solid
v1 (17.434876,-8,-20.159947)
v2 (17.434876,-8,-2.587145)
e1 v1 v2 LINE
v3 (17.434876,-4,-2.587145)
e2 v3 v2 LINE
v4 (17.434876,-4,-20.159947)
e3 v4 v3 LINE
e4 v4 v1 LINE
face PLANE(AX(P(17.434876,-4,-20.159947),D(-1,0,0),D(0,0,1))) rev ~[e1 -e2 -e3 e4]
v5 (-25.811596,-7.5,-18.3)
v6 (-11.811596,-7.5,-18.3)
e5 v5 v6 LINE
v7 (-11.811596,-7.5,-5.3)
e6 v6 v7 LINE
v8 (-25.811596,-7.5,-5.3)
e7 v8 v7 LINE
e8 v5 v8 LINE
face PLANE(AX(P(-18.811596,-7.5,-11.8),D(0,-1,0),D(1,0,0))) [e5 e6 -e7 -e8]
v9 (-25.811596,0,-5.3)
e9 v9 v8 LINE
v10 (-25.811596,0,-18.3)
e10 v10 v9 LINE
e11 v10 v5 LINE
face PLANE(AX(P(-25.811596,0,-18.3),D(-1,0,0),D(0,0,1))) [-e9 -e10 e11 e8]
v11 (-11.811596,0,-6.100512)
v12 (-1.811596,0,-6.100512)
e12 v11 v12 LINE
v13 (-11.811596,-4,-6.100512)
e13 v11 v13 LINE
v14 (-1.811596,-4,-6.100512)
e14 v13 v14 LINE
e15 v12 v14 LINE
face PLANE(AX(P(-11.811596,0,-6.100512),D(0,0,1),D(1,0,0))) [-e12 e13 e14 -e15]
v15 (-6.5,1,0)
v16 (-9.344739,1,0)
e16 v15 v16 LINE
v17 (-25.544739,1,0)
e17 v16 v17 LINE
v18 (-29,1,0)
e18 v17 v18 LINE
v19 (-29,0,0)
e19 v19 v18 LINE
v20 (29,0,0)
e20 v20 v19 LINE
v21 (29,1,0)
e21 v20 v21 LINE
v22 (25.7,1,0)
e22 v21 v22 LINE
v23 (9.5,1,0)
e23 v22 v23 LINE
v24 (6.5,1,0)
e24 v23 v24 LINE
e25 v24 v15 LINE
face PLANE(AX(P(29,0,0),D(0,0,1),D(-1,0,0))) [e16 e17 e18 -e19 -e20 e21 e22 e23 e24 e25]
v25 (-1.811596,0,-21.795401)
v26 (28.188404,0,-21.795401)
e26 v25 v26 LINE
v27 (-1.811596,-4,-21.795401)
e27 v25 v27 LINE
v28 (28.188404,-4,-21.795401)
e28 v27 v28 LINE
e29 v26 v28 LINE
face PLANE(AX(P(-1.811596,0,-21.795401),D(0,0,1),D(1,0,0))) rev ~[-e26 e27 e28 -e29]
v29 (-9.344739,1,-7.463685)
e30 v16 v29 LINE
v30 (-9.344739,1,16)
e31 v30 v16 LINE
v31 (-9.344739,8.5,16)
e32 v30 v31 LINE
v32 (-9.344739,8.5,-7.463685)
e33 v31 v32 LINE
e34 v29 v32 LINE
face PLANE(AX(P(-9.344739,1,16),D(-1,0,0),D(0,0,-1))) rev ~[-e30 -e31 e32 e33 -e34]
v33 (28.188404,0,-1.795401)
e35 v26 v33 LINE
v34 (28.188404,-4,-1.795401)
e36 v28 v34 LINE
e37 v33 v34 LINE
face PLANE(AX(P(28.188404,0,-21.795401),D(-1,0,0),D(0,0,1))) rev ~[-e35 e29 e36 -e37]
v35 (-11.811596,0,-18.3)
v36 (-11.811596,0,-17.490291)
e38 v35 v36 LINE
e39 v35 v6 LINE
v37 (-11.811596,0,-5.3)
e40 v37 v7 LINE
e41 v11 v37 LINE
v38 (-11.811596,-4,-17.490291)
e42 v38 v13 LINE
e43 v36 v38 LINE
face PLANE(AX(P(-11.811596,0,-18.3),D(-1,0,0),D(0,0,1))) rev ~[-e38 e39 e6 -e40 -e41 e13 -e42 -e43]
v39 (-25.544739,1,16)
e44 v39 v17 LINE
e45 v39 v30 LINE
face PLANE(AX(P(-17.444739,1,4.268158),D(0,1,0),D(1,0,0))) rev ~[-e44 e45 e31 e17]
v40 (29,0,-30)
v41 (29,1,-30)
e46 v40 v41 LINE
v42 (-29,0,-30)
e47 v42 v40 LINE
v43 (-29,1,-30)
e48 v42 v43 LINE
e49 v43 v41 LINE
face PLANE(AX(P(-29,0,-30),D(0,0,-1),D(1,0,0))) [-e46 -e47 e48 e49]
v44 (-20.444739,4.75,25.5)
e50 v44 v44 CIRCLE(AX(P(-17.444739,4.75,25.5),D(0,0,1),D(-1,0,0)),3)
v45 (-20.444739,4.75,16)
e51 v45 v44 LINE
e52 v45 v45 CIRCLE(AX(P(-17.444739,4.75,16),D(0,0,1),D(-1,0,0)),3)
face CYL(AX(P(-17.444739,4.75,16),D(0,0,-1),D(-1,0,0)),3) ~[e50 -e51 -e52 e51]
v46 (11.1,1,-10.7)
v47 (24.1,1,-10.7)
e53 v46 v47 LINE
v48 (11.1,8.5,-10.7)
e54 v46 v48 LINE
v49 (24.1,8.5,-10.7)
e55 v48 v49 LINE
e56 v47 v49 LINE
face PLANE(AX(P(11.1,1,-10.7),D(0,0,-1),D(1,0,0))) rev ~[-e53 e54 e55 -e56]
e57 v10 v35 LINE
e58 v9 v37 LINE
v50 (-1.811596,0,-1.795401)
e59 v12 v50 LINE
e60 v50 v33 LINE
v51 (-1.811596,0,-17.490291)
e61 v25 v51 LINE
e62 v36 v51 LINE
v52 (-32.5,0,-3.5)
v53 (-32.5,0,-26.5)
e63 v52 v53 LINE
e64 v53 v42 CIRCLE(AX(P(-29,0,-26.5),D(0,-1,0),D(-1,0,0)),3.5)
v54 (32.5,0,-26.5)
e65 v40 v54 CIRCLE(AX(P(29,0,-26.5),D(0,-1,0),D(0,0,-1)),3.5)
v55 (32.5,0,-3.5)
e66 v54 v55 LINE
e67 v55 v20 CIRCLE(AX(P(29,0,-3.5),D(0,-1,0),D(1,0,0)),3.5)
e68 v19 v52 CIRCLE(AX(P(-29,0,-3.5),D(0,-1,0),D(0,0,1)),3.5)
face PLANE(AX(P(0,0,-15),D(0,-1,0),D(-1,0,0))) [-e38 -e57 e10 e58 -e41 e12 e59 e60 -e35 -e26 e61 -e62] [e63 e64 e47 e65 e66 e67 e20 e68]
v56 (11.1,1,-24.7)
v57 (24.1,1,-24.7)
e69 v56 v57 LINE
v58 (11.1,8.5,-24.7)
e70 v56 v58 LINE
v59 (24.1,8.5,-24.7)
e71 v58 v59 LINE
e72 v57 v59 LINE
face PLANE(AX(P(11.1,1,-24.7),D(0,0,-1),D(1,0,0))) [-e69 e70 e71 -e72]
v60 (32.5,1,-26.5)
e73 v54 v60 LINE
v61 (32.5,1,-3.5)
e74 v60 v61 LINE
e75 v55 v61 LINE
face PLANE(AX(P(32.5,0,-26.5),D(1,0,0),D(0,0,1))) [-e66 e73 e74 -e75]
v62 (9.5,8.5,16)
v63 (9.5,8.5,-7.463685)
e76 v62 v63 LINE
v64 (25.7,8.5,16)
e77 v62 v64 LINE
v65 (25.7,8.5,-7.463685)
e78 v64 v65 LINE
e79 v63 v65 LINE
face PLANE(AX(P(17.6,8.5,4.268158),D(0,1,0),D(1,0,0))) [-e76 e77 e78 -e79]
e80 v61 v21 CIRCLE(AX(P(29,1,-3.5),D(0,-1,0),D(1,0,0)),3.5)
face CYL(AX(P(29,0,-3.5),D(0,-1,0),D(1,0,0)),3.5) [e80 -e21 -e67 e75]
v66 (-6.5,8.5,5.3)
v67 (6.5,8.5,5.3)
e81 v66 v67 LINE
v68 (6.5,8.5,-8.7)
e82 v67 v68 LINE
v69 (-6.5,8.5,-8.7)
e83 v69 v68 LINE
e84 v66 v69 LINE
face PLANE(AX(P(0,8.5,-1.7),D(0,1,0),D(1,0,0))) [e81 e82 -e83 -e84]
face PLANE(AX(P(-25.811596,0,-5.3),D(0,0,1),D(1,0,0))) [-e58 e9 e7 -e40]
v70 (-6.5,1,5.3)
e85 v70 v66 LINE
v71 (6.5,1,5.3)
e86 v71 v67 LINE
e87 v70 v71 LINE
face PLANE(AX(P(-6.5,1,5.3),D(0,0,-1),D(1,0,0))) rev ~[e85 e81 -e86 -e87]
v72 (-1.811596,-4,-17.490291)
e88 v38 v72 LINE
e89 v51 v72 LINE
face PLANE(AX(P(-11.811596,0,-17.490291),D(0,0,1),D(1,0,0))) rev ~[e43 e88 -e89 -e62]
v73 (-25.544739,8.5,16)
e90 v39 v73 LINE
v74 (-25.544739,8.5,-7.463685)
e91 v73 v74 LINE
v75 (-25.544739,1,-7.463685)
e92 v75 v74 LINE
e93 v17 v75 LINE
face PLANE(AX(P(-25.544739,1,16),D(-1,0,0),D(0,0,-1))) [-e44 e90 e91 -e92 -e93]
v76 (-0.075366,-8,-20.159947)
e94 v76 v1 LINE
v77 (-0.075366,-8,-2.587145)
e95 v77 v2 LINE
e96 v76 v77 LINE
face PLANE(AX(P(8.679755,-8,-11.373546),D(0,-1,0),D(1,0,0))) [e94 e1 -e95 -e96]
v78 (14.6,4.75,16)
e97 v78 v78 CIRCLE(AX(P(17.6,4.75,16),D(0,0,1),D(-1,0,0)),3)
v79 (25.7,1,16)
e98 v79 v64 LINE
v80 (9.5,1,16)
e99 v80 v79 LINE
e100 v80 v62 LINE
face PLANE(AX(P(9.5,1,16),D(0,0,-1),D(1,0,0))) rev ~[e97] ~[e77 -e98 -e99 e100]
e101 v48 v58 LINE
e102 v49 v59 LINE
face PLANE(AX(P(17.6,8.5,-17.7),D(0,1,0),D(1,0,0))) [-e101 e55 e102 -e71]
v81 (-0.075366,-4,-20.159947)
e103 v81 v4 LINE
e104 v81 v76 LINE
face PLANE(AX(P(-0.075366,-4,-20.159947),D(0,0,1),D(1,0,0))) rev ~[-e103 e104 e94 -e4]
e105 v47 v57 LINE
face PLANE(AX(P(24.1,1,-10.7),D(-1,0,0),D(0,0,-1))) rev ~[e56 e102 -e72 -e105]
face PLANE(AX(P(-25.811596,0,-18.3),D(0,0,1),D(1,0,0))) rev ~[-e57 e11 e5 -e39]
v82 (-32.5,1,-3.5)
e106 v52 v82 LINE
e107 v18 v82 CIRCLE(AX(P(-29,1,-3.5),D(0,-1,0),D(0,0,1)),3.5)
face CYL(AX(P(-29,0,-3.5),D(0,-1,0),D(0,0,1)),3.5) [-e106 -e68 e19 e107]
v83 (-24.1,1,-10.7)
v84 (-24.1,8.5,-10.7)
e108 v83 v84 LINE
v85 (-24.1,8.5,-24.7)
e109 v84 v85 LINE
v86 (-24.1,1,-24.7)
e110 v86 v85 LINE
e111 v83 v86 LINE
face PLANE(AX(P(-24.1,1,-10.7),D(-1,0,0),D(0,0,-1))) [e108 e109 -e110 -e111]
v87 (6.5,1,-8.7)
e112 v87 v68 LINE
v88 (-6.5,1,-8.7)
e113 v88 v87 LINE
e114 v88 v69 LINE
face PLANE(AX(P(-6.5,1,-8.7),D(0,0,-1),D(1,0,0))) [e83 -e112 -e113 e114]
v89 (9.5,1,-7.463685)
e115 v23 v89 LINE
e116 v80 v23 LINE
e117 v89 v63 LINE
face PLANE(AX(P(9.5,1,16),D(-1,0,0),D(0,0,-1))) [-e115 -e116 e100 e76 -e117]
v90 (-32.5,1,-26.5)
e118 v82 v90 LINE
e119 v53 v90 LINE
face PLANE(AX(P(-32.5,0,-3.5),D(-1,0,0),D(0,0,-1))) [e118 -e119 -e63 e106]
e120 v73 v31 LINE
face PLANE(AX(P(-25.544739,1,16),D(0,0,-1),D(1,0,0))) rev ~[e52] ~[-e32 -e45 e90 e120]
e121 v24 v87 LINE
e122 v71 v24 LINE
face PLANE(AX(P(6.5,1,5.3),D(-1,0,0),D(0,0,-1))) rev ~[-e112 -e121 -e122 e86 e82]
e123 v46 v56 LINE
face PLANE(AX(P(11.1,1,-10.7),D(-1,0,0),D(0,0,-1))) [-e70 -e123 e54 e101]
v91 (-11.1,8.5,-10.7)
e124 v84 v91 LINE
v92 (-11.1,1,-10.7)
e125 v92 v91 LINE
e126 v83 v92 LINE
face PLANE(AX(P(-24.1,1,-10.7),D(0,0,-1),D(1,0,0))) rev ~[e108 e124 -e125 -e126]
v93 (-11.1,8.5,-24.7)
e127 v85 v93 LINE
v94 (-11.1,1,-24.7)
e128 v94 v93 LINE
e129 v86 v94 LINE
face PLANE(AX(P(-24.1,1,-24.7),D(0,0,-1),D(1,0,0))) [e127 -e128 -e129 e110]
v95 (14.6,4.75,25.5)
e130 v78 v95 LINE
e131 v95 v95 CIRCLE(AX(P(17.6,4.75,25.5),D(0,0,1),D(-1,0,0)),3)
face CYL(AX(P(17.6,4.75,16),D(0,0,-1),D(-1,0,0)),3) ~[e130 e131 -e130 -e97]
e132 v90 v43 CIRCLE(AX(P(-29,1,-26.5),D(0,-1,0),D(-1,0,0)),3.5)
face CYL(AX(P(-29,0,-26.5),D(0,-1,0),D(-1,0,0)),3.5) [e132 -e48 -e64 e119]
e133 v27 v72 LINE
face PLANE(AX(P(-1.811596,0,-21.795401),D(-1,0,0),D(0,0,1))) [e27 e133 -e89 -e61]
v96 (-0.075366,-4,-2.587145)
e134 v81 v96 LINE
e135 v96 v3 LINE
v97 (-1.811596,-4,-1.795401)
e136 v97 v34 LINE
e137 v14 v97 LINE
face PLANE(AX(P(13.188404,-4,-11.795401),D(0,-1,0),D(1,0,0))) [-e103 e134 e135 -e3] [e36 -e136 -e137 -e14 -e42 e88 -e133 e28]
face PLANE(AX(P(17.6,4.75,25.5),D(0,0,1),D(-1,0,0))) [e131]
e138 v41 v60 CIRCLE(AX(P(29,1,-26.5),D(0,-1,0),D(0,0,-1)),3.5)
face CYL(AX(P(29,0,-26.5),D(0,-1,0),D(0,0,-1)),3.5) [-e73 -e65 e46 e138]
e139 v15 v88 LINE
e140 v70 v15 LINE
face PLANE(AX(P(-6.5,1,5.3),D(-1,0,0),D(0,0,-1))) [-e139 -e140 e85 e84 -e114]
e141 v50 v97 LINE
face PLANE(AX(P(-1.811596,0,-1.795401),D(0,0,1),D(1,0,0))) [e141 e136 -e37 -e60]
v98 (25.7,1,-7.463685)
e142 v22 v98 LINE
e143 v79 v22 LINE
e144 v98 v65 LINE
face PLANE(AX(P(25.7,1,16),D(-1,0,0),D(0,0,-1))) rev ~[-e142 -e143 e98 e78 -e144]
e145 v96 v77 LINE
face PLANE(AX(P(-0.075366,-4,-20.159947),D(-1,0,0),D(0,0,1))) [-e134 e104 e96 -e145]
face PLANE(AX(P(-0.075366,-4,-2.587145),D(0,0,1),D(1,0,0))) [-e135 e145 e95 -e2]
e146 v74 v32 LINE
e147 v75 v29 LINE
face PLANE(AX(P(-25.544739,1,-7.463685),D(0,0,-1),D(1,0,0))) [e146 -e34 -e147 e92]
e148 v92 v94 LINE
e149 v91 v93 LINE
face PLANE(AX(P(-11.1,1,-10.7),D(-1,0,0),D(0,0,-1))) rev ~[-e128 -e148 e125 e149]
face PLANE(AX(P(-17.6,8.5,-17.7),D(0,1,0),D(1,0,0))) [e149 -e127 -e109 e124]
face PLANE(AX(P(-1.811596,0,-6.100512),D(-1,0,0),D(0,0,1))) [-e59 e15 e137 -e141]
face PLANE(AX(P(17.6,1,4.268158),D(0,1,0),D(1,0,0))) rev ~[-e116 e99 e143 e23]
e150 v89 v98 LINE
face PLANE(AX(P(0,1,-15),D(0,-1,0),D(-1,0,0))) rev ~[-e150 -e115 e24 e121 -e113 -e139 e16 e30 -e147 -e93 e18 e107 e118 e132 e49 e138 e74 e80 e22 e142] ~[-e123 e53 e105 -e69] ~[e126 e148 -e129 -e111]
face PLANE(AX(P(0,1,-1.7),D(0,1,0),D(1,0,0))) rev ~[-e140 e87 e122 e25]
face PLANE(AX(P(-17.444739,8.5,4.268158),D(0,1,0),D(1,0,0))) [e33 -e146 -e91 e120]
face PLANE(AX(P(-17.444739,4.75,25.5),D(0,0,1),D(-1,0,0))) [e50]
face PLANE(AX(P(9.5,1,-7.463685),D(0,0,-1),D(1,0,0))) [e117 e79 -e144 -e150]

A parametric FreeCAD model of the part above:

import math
import FreeCAD as App
import Part
import Sketcher


def add_polygon(sketch, points):
    """Adds a closed chain of lines whose ends are joined by coincident constraints."""
    first, n = sketch.GeometryCount, len(points)
    for a, b in zip(points, points[1:] + points[:1]):
        sketch.addGeometry(Part.LineSegment(App.Vector(*a, 0), App.Vector(*b, 0)), False)
    for i in range(n):
        sketch.addConstraint(Sketcher.Constraint("Coincident", first + i, 2, first + (i + 1) % n, 1))

doc = App.newDocument("Part")
body = doc.addObject("PartDesign::Body", "Body")

# Sketch on XZ plane
sketch1 = doc.addObject("Sketcher::SketchObject", "Sketch")
body.addObject(sketch1)
sketch1.AttachmentSupport = (doc.XZ_Plane, [""])
sketch1.MapMode = "FlatFace"
sketch1.addGeometry(Part.LineSegment(App.Vector(29, -30, 0), App.Vector(-29, -30, 0)), False)
sketch1.addGeometry(Part.ArcOfCircle(Part.Circle(App.Vector(-29, -26.5, 0), App.Vector(0, 0, 1), 3.5), math.radians(-180), math.radians(-90)), False)
sketch1.addGeometry(Part.LineSegment(App.Vector(-32.5, -26.5, 0), App.Vector(-32.5, -3.5, 0)), False)
sketch1.addGeometry(Part.ArcOfCircle(Part.Circle(App.Vector(-29, -3.5, 0), App.Vector(0, 0, 1), 3.5), math.radians(90), math.radians(180)), False)
sketch1.addGeometry(Part.LineSegment(App.Vector(-29, 0, 0), App.Vector(29, 0, 0)), False)
sketch1.addGeometry(Part.ArcOfCircle(Part.Circle(App.Vector(29, -3.5, 0), App.Vector(0, 0, 1), 3.5), math.radians(0), math.radians(90)), False)
sketch1.addGeometry(Part.LineSegment(App.Vector(32.5, -3.5, 0), App.Vector(32.5, -26.5, 0)), False)
sketch1.addGeometry(Part.ArcOfCircle(Part.Circle(App.Vector(29, -26.5, 0), App.Vector(0, 0, 1), 3.5), math.radians(-90), math.radians(0)), False)
sketch1.addConstraint(Sketcher.Constraint("Tangent", 0, 2, 1, 2))
sketch1.addConstraint(Sketcher.Constraint("Tangent", 1, 1, 2, 1))
sketch1.addConstraint(Sketcher.Constraint("Tangent", 2, 2, 3, 2))
sketch1.addConstraint(Sketcher.Constraint("Tangent", 3, 1, 4, 1))
sketch1.addConstraint(Sketcher.Constraint("Tangent", 4, 2, 5, 2))
sketch1.addConstraint(Sketcher.Constraint("Tangent", 5, 1, 6, 1))
sketch1.addConstraint(Sketcher.Constraint("Tangent", 6, 2, 7, 2))
sketch1.addConstraint(Sketcher.Constraint("Tangent", 7, 1, 0, 1))
sketch1.addConstraint(Sketcher.Constraint("Horizontal", 0))
sketch1.addConstraint(Sketcher.Constraint("Vertical", 2))
sketch1.addConstraint(Sketcher.Constraint("Horizontal", 4))
sketch1.addConstraint(Sketcher.Constraint("Vertical", 6))
sketch1.addConstraint(Sketcher.Constraint("Equal", 1, 3))
sketch1.addConstraint(Sketcher.Constraint("Equal", 3, 5))
sketch1.addConstraint(Sketcher.Constraint("Equal", 5, 7))
sketch1.addConstraint(Sketcher.Constraint("Symmetric", 3, 1, 4, 2, -1, 1))
sketch1.addConstraint(Sketcher.Constraint("Radius", 1, 3.5))
sketch1.addConstraint(Sketcher.Constraint("DistanceX", 0, 2, 0, 1, 58.0))
sketch1.addConstraint(Sketcher.Constraint("DistanceY", 2, 1, 2, 2, 23.0))
pad1 = doc.addObject("PartDesign::Pad", "Pad")
body.addObject(pad1)
pad1.Profile = sketch1
pad1.Length = 1
pad1.Reversed = True

# Sketch on XZ plane
sketch2 = doc.addObject("Sketcher::SketchObject", "Sketch001")
body.addObject(sketch2)
sketch2.AttachmentSupport = (doc.XZ_Plane, [""])
sketch2.MapMode = "FlatFace"
add_polygon(sketch2, [(-26, -5), (-26, -18), (-12, -18), (-12, -5)])  # lines 0-3
sketch2.addConstraint(Sketcher.Constraint("Vertical", 0))
sketch2.addConstraint(Sketcher.Constraint("Horizontal", 1))
sketch2.addConstraint(Sketcher.Constraint("Vertical", 2))
sketch2.addConstraint(Sketcher.Constraint("Horizontal", 3))
sketch2.addConstraint(Sketcher.Constraint("DistanceX", 1, 1, 1, 2, 14.0))
sketch2.addConstraint(Sketcher.Constraint("DistanceY", 0, 2, 0, 1, 13.0))
sketch2.addConstraint(Sketcher.Constraint("DistanceY", 0, 2, -1, 1, 18.3))
sketch2.addConstraint(Sketcher.Constraint("DistanceX", 0, 2, -1, 1, 25.811596))
pad2 = doc.addObject("PartDesign::Pad", "Pad001")
body.addObject(pad2)
pad2.Profile = sketch2
pad2.Length = 7.5

# Sketch on XZ plane
sketch3 = doc.addObject("Sketcher::SketchObject", "Sketch002")
body.addObject(sketch3)
sketch3.AttachmentSupport = (doc.XZ_Plane, [""])
sketch3.MapMode = "FlatFace"
add_polygon(sketch3, [(-1.8, -17.5), (-1.8, -21.8), (28.2, -21.8), (28.2, -1.8), (-1.8, -1.8), (-1.8, -6.1), (-11.8, -6.1), (-11.8, -17.5)])  # lines 0-7
sketch3.addConstraint(Sketcher.Constraint("Vertical", 0))
sketch3.addConstraint(Sketcher.Constraint("Horizontal", 1))
sketch3.addConstraint(Sketcher.Constraint("Vertical", 2))
sketch3.addConstraint(Sketcher.Constraint("Horizontal", 3))
sketch3.addConstraint(Sketcher.Constraint("Vertical", 4))
sketch3.addConstraint(Sketcher.Constraint("Horizontal", 5))
sketch3.addConstraint(Sketcher.Constraint("Vertical", 6))
sketch3.addConstraint(Sketcher.Constraint("Horizontal", 7))
sketch3.addConstraint(Sketcher.Constraint("Vertical", 0, 2, 3, 2))
sketch3.addConstraint(Sketcher.Constraint("Equal", 0, 4))
sketch3.addConstraint(Sketcher.Constraint("DistanceX", 1, 1, 1, 2, 30.0))
sketch3.addConstraint(Sketcher.Constraint("DistanceX", 5, 2, 5, 1, 10.0))
sketch3.addConstraint(Sketcher.Constraint("DistanceY", 2, 1, 2, 2, 20.0))
sketch3.addConstraint(Sketcher.Constraint("DistanceY", 0, 2, 0, 1, 4.30511))
sketch3.addConstraint(Sketcher.Constraint("DistanceY", 0, 2, -1, 1, 21.795401))
sketch3.addConstraint(Sketcher.Constraint("DistanceX", 0, 2, -1, 1, 1.811596))
pad3 = doc.addObject("PartDesign::Pad", "Pad002")
body.addObject(pad3)
pad3.Profile = sketch3
pad3.Length = 4

# Sketch on XZ plane
sketch4 = doc.addObject("Sketcher::SketchObject", "Sketch003")
body.addObject(sketch4)
sketch4.AttachmentSupport = (doc.XZ_Plane, [""])
sketch4.MapMode = "FlatFace"
sketch4.AttachmentOffset = App.Placement(App.Vector(0, 0, 4), App.Rotation())
add_polygon(sketch4, [(0, -3), (0, -20), (17, -20), (17, -3)])  # lines 0-3
sketch4.addConstraint(Sketcher.Constraint("Vertical", 0))
sketch4.addConstraint(Sketcher.Constraint("Horizontal", 1))
sketch4.addConstraint(Sketcher.Constraint("Vertical", 2))
sketch4.addConstraint(Sketcher.Constraint("Horizontal", 3))
sketch4.addConstraint(Sketcher.Constraint("DistanceX", 1, 1, 1, 2, 17.510242))
sketch4.addConstraint(Sketcher.Constraint("DistanceY", 0, 2, 0, 1, 17.572802))
sketch4.addConstraint(Sketcher.Constraint("DistanceX", 0, 2, -1, 1, 0.075366))
sketch4.addConstraint(Sketcher.Constraint("DistanceY", 0, 2, -1, 1, 20.159947))
pad4 = doc.addObject("PartDesign::Pad", "Pad003")
body.addObject(pad4)
pad4.Profile = sketch4
pad4.Length = 4

# Sketch on XZ plane
sketch5 = doc.addObject("Sketcher::SketchObject", "Sketch004")
body.addObject(sketch5)
sketch5.AttachmentSupport = (doc.XZ_Plane, [""])
sketch5.MapMode = "FlatFace"
sketch5.AttachmentOffset = App.Placement(App.Vector(0, 0, -1), App.Rotation())
add_polygon(sketch5, [(-6, -9), (-6, 5), (6, 5), (6, -9)])  # lines 0-3
add_polygon(sketch5, [(-24, -25), (-24, -11), (-11, -11), (-11, -25)])  # lines 4-7
add_polygon(sketch5, [(11, -25), (11, -11), (24, -11), (24, -25)])  # lines 8-11
sketch5.addConstraint(Sketcher.Constraint("Vertical", 0))
sketch5.addConstraint(Sketcher.Constraint("Horizontal", 1))
sketch5.addConstraint(Sketcher.Constraint("Vertical", 2))
sketch5.addConstraint(Sketcher.Constraint("Horizontal", 3))
sketch5.addConstraint(Sketcher.Constraint("Vertical", 4))
sketch5.addConstraint(Sketcher.Constraint("Horizontal", 5))
sketch5.addConstraint(Sketcher.Constraint("Vertical", 6))
sketch5.addConstraint(Sketcher.Constraint("Horizontal", 7))
sketch5.addConstraint(Sketcher.Constraint("Vertical", 8))
sketch5.addConstraint(Sketcher.Constraint("Horizontal", 9))
sketch5.addConstraint(Sketcher.Constraint("Vertical", 10))
sketch5.addConstraint(Sketcher.Constraint("Horizontal", 11))
sketch5.addConstraint(Sketcher.Constraint("Symmetric", 5, 2, 8, 2, -2))
sketch5.addConstraint(Sketcher.Constraint("Symmetric", 7, 2, 10, 2, -2))
sketch5.addConstraint(Sketcher.Constraint("Equal", 3, 5))
sketch5.addConstraint(Sketcher.Constraint("Equal", 2, 4))
sketch5.addConstraint(Sketcher.Constraint("DistanceX", 1, 1, 1, 2, 13.0))
sketch5.addConstraint(Sketcher.Constraint("DistanceY", 0, 1, 0, 2, 14.0))
sketch5.addConstraint(Sketcher.Constraint("DistanceY", 4, 2, 3, 2, 2.0))
sketch5.addConstraint(Sketcher.Constraint("DistanceX", 0, 2, -1, 1, 6.5))
sketch5.addConstraint(Sketcher.Constraint("DistanceY", -1, 1, 0, 2, 5.3))
sketch5.addConstraint(Sketcher.Constraint("DistanceX", 4, 2, -1, 1, 24.1))
pad5 = doc.addObject("PartDesign::Pad", "Pad004")
body.addObject(pad5)
pad5.Profile = sketch5
pad5.Length = 7.5
pad5.Reversed = True

# Sketch on XZ plane
sketch6 = doc.addObject("Sketcher::SketchObject", "Sketch005")
body.addObject(sketch6)
sketch6.AttachmentSupport = (doc.XZ_Plane, [""])
sketch6.MapMode = "FlatFace"
sketch6.AttachmentOffset = App.Placement(App.Vector(0, 0, -1), App.Rotation())
add_polygon(sketch6, [(-26, -7), (-26, 16), (-9, 16), (-9, -7)])  # lines 0-3
add_polygon(sketch6, [(10, -7), (10, 16), (26, 16), (26, -7)])  # lines 4-7
sketch6.addConstraint(Sketcher.Constraint("Vertical", 0))
sketch6.addConstraint(Sketcher.Constraint("Horizontal", 1))
sketch6.addConstraint(Sketcher.Constraint("Vertical", 2))
sketch6.addConstraint(Sketcher.Constraint("Horizontal", 3))
sketch6.addConstraint(Sketcher.Constraint("Vertical", 4))
sketch6.addConstraint(Sketcher.Constraint("Horizontal", 5))
sketch6.addConstraint(Sketcher.Constraint("Vertical", 6))
sketch6.addConstraint(Sketcher.Constraint("Horizontal", 7))
sketch6.addConstraint(Sketcher.Constraint("Horizontal", 1, 2, 4, 2))
sketch6.addConstraint(Sketcher.Constraint("Horizontal", 3, 2, 6, 2))
sketch6.addConstraint(Sketcher.Constraint("Equal", 3, 5))
sketch6.addConstraint(Sketcher.Constraint("DistanceX", 1, 1, 1, 2, 16.2))
sketch6.addConstraint(Sketcher.Constraint("DistanceY", -1, 1, 0, 2, 16.0))
sketch6.addConstraint(Sketcher.Constraint("DistanceX", -1, 1, 4, 2, 9.5))
sketch6.addConstraint(Sketcher.Constraint("DistanceY", 0, 1, 0, 2, 23.463685))
sketch6.addConstraint(Sketcher.Constraint("DistanceX", 0, 2, -1, 1, 25.544739))
pad6 = doc.addObject("PartDesign::Pad", "Pad005")
body.addObject(pad6)
pad6.Profile = sketch6
pad6.Length = 7.5
pad6.Reversed = True

# Sketch on XY plane
sketch7 = doc.addObject("Sketcher::SketchObject", "Sketch006")
body.addObject(sketch7)
sketch7.AttachmentSupport = (doc.XY_Plane, [""])
sketch7.MapMode = "FlatFace"
sketch7.AttachmentOffset = App.Placement(App.Vector(0, 0, 16), App.Rotation())
sketch7.addGeometry(Part.Circle(App.Vector(-17.4, 4.8, 0), App.Vector(0, 0, 1), 3), False)
sketch7.addGeometry(Part.Circle(App.Vector(17.6, 4.8, 0), App.Vector(0, 0, 1), 3), False)
sketch7.addConstraint(Sketcher.Constraint("Equal", 0, 1))
sketch7.addConstraint(Sketcher.Constraint("Horizontal", 0, 3, 1, 3))
sketch7.addConstraint(Sketcher.Constraint("Diameter", 0, 6.0))
sketch7.addConstraint(Sketcher.Constraint("DistanceX", -1, 1, 1, 3, 17.6))
sketch7.addConstraint(Sketcher.Constraint("DistanceY", -1, 1, 0, 3, 4.75))
sketch7.addConstraint(Sketcher.Constraint("DistanceX", 0, 3, -1, 1, 17.444739))
pad7 = doc.addObject("PartDesign::Pad", "Pad006")
body.addObject(pad7)
pad7.Profile = sketch7
pad7.Length = 9.5

doc.recompute()
